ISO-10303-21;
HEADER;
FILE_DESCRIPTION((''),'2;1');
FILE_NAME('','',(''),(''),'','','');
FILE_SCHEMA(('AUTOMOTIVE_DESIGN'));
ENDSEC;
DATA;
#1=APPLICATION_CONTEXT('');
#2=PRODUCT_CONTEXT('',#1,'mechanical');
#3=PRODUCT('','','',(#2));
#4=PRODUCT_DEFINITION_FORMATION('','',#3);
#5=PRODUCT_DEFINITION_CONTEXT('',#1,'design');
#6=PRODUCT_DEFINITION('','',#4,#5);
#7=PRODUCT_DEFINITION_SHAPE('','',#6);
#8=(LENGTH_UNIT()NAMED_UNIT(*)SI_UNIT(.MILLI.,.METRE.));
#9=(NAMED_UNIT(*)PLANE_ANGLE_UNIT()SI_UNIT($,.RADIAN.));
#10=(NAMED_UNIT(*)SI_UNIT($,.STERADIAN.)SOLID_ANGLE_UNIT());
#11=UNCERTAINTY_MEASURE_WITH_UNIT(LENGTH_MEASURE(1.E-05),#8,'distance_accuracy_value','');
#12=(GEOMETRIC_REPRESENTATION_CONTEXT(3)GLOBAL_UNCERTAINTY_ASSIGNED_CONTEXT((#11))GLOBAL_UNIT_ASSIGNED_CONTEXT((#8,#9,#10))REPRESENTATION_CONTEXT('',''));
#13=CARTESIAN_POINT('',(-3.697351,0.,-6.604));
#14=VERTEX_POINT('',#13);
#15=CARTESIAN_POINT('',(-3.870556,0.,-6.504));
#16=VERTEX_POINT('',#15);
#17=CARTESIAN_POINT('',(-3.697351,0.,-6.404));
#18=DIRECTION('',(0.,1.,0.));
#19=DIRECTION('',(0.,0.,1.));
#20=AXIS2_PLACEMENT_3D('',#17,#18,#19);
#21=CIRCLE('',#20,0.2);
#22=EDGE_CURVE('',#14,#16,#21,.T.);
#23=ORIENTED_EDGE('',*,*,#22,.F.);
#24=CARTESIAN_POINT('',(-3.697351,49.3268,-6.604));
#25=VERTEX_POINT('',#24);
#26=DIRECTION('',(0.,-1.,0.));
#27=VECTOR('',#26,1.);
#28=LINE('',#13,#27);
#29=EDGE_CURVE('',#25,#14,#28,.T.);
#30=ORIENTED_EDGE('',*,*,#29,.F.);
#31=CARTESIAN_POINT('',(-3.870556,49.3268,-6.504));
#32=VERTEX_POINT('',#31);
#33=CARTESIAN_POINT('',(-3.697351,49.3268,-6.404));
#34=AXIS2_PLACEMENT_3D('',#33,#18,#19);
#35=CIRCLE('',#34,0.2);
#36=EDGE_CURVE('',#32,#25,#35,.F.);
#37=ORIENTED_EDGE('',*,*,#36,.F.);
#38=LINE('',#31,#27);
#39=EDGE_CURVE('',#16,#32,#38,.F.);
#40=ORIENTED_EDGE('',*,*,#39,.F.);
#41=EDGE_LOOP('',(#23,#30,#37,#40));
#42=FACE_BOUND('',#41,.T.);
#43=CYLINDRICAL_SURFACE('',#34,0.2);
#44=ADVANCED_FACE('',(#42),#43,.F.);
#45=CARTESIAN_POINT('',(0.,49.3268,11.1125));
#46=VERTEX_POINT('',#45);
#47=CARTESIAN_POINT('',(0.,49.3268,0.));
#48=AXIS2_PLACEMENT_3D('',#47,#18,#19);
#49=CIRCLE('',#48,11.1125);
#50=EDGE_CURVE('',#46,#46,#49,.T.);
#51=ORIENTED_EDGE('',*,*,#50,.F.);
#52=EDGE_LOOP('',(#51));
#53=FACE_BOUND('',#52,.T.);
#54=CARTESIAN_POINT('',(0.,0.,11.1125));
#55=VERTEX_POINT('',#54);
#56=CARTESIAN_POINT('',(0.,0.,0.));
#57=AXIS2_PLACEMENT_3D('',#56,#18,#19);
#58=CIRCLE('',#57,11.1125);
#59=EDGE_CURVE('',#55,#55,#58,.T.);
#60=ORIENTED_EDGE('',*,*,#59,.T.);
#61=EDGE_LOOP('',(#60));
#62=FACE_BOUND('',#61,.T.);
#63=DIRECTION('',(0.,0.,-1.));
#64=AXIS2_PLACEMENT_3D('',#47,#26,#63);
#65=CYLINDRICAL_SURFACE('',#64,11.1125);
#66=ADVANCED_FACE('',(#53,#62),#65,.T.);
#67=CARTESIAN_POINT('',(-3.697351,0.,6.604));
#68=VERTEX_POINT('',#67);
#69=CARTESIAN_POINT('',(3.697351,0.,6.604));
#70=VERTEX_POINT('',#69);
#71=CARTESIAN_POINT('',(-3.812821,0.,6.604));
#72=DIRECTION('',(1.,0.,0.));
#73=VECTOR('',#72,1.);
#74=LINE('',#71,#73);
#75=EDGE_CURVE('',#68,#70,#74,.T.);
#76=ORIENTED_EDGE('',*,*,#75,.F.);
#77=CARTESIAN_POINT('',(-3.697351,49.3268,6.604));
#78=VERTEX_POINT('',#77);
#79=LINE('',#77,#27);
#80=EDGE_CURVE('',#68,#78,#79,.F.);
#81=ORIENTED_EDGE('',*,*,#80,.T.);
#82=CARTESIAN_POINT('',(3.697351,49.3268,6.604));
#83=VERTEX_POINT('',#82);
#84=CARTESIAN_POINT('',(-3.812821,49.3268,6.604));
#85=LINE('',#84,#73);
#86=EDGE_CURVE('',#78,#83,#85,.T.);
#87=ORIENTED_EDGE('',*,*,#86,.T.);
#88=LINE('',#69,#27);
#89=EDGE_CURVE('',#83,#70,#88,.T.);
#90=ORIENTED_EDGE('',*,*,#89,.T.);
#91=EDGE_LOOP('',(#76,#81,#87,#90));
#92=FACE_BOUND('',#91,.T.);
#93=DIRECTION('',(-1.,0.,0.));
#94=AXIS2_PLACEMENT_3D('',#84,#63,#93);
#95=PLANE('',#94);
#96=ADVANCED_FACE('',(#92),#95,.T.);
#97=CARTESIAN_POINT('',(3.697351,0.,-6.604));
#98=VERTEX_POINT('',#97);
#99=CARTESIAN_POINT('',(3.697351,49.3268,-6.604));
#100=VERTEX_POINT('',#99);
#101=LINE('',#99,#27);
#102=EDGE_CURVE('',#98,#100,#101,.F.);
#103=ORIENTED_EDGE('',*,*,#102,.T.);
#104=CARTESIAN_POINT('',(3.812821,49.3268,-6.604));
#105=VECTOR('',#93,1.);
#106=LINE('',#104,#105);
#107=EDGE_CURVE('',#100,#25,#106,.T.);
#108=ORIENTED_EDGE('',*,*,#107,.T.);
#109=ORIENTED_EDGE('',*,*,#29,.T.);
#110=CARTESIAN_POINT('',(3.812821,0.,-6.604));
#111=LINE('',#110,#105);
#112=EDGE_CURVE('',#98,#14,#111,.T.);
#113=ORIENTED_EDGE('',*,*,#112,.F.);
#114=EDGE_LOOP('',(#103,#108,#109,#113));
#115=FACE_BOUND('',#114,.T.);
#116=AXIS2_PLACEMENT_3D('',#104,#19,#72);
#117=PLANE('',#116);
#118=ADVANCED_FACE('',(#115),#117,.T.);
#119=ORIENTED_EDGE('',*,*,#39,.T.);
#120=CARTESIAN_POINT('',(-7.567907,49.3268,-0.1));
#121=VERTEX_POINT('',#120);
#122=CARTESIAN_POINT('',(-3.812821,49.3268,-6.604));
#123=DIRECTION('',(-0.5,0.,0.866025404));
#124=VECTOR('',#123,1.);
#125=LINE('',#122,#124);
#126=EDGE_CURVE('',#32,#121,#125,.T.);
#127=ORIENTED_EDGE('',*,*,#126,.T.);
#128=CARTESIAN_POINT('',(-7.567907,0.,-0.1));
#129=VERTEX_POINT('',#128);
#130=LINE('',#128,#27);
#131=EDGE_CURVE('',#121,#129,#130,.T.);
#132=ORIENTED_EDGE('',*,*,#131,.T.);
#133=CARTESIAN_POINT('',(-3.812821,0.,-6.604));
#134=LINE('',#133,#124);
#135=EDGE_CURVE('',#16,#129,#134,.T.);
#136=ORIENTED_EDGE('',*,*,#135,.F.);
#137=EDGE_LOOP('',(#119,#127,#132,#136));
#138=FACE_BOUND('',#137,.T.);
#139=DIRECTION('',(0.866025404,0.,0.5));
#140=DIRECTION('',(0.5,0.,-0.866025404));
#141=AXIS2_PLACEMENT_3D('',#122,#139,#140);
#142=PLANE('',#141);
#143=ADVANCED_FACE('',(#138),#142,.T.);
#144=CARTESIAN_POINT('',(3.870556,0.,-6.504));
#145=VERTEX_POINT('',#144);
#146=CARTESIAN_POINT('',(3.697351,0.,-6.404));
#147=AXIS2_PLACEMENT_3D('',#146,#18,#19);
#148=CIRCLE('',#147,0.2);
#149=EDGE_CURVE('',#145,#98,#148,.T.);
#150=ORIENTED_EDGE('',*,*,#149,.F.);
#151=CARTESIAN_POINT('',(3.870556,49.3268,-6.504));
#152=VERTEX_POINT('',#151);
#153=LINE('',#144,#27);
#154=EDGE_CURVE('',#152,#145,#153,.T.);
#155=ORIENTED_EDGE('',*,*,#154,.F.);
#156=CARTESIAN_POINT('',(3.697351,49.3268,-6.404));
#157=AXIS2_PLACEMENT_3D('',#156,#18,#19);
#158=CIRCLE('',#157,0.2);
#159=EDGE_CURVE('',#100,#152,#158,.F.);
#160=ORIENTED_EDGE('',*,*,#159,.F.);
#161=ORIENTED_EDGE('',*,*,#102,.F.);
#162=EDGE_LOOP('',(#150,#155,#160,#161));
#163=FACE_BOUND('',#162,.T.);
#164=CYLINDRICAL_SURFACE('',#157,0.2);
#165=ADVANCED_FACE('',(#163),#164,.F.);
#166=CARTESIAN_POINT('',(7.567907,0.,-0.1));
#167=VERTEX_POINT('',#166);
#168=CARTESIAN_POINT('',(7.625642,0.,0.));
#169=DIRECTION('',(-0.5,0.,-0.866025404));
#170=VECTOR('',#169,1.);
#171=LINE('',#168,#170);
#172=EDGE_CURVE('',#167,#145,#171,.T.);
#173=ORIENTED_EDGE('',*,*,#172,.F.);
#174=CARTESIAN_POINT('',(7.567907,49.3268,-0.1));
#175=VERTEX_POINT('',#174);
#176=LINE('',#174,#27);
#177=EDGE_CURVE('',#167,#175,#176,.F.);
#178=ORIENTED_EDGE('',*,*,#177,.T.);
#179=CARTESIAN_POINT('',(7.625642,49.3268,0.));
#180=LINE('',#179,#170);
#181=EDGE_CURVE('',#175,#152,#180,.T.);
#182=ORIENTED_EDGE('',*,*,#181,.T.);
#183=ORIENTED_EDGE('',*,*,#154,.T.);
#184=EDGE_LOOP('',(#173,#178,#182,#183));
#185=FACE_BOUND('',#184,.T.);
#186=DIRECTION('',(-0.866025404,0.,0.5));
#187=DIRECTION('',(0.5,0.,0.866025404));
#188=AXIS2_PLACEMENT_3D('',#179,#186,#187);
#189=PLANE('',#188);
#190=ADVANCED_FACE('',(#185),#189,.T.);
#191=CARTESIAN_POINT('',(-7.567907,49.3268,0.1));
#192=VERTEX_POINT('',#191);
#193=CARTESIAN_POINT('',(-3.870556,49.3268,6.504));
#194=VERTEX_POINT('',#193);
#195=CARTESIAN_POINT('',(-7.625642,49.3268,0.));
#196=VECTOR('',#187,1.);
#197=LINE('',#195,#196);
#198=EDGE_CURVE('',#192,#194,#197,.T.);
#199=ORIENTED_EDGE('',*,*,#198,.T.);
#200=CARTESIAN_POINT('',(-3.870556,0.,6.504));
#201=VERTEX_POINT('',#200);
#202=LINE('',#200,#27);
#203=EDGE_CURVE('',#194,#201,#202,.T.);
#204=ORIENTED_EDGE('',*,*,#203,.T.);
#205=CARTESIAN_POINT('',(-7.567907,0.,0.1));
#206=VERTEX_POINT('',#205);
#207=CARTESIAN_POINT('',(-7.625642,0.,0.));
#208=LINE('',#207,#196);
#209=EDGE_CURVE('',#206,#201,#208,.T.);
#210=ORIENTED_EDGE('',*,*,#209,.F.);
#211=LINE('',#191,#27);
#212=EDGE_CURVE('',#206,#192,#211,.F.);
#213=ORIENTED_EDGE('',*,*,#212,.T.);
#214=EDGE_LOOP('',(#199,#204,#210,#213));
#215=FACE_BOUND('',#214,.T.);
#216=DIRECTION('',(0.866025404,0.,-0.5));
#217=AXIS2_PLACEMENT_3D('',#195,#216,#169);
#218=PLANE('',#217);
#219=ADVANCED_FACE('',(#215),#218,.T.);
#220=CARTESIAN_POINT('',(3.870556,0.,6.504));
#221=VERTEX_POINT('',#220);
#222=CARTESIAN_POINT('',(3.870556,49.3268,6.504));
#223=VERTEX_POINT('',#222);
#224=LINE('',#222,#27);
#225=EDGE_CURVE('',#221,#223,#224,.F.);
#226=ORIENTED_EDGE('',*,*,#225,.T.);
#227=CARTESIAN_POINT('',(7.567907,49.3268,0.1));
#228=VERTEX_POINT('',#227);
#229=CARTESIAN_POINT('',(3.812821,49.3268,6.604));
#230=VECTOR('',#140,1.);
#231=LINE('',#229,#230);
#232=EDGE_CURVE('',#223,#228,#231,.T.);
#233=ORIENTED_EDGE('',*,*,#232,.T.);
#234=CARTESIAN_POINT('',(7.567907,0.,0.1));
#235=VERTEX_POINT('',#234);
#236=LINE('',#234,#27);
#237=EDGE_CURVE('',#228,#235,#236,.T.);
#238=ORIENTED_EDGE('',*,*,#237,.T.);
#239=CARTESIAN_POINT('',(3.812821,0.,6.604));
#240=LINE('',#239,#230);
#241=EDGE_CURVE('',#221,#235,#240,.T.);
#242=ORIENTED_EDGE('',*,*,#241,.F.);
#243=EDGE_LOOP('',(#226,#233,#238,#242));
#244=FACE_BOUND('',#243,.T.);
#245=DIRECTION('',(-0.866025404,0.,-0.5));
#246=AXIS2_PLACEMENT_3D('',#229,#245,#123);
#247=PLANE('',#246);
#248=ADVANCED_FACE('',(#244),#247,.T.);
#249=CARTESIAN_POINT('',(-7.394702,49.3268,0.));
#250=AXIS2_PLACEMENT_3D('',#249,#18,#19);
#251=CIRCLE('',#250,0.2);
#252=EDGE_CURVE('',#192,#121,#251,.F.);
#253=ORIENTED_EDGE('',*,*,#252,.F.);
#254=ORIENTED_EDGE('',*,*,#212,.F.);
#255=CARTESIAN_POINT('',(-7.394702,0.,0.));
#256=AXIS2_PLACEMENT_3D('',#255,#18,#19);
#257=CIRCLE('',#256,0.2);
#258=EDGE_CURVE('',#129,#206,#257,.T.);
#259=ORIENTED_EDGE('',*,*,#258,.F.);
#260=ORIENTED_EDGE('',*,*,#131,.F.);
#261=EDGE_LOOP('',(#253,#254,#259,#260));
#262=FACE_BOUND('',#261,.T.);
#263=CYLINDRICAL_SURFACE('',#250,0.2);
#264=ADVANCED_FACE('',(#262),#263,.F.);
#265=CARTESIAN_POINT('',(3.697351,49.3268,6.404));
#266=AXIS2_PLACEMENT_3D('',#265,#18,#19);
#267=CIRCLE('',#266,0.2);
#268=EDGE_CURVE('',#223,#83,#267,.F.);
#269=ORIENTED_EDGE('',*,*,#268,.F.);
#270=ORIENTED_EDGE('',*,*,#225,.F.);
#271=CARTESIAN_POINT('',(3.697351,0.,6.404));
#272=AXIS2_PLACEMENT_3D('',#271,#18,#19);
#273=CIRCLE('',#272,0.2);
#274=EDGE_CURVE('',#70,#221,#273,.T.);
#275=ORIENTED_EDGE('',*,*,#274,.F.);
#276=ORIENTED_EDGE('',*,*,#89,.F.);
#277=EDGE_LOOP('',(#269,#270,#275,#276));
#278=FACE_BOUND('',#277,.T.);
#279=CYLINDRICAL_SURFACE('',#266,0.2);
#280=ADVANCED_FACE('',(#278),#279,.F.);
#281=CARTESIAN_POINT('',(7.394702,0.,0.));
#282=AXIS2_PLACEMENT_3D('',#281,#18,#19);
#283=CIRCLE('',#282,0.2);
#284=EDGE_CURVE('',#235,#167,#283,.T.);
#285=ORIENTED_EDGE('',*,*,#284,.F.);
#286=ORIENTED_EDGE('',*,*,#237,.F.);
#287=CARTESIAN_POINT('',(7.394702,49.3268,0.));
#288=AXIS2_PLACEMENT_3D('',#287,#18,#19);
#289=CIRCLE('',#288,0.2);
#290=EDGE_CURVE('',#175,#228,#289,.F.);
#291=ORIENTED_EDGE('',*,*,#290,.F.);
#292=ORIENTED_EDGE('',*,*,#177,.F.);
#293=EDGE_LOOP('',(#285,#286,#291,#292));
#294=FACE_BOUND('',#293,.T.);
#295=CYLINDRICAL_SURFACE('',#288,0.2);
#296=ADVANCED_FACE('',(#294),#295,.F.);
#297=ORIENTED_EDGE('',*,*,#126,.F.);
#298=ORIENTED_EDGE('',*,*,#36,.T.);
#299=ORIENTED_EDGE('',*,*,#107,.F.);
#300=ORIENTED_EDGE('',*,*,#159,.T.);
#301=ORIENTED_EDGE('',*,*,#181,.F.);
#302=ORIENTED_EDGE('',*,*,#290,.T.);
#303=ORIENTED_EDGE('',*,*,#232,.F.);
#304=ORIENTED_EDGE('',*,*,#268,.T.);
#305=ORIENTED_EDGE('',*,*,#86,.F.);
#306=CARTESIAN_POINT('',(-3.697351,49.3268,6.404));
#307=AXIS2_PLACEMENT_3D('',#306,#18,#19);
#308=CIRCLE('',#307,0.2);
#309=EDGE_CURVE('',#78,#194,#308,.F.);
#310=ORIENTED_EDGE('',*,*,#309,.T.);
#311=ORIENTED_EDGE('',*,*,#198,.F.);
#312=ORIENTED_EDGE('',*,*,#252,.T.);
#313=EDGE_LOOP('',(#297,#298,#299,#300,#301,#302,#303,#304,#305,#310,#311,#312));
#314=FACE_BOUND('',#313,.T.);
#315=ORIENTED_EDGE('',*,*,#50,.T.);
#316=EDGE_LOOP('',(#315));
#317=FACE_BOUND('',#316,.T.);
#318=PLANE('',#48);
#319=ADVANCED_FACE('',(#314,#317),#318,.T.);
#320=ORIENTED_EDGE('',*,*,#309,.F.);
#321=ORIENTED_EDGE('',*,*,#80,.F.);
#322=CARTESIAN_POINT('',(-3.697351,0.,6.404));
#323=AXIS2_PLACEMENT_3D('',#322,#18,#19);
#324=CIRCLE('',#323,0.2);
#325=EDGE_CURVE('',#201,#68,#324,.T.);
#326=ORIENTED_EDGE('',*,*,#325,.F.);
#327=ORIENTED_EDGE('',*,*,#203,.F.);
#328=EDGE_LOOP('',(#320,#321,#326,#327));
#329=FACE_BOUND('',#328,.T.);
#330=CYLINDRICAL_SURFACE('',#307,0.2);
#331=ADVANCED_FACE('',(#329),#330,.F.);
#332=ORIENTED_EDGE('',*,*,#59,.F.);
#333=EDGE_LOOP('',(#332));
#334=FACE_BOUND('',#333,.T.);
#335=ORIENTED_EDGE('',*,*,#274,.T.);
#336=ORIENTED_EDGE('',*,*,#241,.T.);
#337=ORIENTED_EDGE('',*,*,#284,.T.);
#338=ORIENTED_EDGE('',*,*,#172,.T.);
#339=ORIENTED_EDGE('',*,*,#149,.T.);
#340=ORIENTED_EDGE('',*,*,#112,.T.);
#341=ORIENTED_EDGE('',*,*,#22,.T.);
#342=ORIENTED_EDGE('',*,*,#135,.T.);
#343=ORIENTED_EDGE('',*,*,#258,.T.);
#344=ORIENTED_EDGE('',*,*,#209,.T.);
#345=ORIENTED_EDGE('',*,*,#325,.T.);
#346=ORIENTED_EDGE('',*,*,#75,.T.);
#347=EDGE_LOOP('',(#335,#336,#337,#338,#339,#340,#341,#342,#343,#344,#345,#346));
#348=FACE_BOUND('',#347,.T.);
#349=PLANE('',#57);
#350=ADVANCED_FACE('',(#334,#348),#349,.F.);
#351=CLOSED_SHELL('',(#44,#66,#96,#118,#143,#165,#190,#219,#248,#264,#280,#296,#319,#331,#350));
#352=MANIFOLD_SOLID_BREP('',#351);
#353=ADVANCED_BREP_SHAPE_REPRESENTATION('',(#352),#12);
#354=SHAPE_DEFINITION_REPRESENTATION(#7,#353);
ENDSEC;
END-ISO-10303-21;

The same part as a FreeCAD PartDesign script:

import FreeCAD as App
import Part
import Sketcher
Q = App.Units.Quantity


def edges_at(feature, points):
    """Names of the edges that pass closest to the given points."""
    edges = feature.Shape.Edges
    near = lambda p: min(range(len(edges)), key=lambda i: edges[i].distToShape(Part.Vertex(*p))[0])
    return sorted({f"Edge{near(p) + 1}" for p in points})


def add_polygon(sketch, points):
    """Adds a closed chain of lines whose ends are joined by coincident constraints."""
    first, n = sketch.GeometryCount, len(points)
    for a, b in zip(points, points[1:] + points[:1]):
        sketch.addGeometry(Part.LineSegment(App.Vector(*a, 0), App.Vector(*b, 0)), False)
    for i in range(n):
        sketch.addConstraint(Sketcher.Constraint("Coincident", first + i, 2, first + (i + 1) % n, 1))

doc = App.newDocument("Part")
body = doc.addObject("PartDesign::Body", "Body")

# Sketch on XZ plane
sketch1 = body.newObject("Sketcher::SketchObject", "Sketch")
sketch1.AttachmentSupport = (doc.getObject("XZ_Plane"), [""])
sketch1.MapMode = "FlatFace"
sketch1.addGeometry(Part.Circle(App.Vector(0, 0, 0), App.Vector(0, 0, 1), 11), False)  # 0
add_polygon(sketch1, [(4, -7), (8, 0), (4, 7), (-4, 7), (-8, 0), (-4, -7)])  # lines 1-6
sketch1.addConstraint([
    Sketcher.Constraint("Horizontal", 3),
    Sketcher.Constraint("Horizontal", 6),
    Sketcher.Constraint("Coincident", 0, 3, -1, 1),
    Sketcher.Constraint("Symmetric", 1, 2, 4, 2, -1, 1),
    Sketcher.Constraint("Symmetric", 2, 2, 5, 2, -1, 1),
    Sketcher.Constraint("PointOnObject", 1, 2, -1),
    Sketcher.Constraint("Parallel", 1, 4),
    Sketcher.Constraint("Vertical", 3, 2, 5, 2),
    Sketcher.Constraint("Diameter", 0, Q("0.875 in")),
    Sketcher.Constraint("Angle", 1, Q("60 deg")),
    Sketcher.Constraint("DistanceY", -1, 1, 2, 2, Q("0.26 in")),
    Sketcher.Constraint("DistanceX", 3, 2, 3, 1, Q("7.625642 mm")),
])
pad1 = body.newObject("PartDesign::Pad", "Pad")
pad1.Profile = sketch1
pad1.Length = Q("1.942 in")
pad1.Reversed = True
doc.recompute()

fillet = body.newObject("PartDesign::Fillet", "Fillet")
fillet.Base = (pad1, edges_at(pad1, [
    (7.626, 24.663, 0),
    (3.813, 24.663, -6.604),
    (-3.813, 24.663, -6.604),
    (-7.626, 24.663, 0),
    (-3.813, 24.663, 6.604),
    (3.813, 24.663, 6.604),
]))
fillet.Radius = 0.2

doc.recompute()
